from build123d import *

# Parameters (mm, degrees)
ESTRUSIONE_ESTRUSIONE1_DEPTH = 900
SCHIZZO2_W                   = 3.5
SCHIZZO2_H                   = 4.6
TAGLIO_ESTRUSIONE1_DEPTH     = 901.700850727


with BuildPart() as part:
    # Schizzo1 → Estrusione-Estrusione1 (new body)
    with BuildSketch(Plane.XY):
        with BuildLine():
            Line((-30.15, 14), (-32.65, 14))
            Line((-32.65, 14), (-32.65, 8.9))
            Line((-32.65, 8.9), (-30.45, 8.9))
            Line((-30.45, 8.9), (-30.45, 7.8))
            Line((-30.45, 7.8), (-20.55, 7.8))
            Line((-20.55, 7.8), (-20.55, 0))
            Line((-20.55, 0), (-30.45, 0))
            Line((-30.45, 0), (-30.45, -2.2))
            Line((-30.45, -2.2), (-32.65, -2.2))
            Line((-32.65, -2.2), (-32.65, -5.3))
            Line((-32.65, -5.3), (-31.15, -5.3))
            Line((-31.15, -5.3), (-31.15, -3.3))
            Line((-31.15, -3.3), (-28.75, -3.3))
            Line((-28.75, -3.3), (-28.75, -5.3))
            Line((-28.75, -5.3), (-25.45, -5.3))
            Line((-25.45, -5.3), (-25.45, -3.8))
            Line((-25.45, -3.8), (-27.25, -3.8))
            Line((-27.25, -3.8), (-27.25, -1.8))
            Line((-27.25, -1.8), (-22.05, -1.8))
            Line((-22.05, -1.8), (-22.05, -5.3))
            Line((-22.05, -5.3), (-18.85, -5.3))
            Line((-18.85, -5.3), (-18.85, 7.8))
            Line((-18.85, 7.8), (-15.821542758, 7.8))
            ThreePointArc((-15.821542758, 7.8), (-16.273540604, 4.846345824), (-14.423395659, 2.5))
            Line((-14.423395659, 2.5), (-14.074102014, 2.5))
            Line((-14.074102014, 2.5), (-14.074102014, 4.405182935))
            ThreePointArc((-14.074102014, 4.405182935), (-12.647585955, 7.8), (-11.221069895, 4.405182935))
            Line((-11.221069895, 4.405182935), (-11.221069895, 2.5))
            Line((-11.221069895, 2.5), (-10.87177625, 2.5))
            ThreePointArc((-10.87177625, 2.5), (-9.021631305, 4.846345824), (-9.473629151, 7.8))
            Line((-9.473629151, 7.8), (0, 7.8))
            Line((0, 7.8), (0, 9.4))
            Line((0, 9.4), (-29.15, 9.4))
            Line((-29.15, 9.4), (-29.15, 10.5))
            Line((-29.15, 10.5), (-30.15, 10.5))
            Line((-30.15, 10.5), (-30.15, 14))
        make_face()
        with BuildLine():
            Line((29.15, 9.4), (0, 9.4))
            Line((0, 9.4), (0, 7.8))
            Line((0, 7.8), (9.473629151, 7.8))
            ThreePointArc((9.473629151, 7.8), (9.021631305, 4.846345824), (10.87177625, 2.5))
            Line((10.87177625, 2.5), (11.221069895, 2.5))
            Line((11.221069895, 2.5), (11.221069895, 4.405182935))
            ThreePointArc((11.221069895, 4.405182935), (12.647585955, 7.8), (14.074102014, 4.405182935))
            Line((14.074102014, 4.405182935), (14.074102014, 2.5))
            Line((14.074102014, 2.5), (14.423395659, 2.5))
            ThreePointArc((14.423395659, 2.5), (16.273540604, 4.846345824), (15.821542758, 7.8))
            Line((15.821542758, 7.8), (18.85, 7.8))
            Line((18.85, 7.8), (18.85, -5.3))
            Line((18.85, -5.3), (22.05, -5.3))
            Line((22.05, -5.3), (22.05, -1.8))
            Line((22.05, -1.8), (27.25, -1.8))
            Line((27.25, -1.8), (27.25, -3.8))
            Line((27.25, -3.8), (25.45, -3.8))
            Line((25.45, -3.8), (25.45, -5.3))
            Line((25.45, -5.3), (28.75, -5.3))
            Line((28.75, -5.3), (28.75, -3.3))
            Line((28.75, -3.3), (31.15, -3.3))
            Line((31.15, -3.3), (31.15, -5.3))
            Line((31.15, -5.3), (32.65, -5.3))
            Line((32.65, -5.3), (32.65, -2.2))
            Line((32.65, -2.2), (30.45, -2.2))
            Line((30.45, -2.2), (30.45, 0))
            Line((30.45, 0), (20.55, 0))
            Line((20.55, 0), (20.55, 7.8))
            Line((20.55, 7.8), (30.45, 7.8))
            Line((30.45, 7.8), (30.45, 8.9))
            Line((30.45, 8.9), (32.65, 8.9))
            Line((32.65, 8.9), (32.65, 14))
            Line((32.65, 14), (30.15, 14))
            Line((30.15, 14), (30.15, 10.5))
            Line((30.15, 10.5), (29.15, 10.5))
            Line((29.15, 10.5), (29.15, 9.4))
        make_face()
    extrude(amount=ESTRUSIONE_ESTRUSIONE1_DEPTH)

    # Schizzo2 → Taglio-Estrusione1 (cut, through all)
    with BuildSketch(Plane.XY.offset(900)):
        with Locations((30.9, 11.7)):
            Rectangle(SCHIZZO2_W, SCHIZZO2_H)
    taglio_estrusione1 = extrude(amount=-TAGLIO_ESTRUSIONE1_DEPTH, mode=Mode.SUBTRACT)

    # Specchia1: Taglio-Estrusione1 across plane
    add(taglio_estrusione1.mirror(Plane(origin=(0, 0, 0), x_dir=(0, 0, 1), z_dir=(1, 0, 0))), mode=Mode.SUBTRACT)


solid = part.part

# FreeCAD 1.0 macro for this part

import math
import FreeCAD as App
import Part
import Sketcher

V = App.Vector

doc = App.newDocument("Part")
body = doc.addObject("PartDesign::Body", "Body")

# Sketch on XY plane
sketch1 = doc.addObject("Sketcher::SketchObject", "Sketch")
body.addObject(sketch1)
sketch1.AttachmentSupport = (doc.XY_Plane, [""])
sketch1.MapMode = "FlatFace"
sketch1.addGeometry([
    Part.LineSegment(V(-30.15, 14, 0), V(-32.65, 14, 0)),  # 0
    Part.LineSegment(V(-32.65, 14, 0), V(-32.65, 8.9, 0)),  # 1
    Part.LineSegment(V(-32.65, 8.9, 0), V(-30.45, 8.9, 0)),  # 2
    Part.LineSegment(V(-30.45, 8.9, 0), V(-30.45, 7.8, 0)),  # 3
    Part.LineSegment(V(-30.45, 7.8, 0), V(-20.55, 7.8, 0)),  # 4
    Part.LineSegment(V(-20.55, 7.8, 0), V(-20.55, 0, 0)),  # 5
    Part.LineSegment(V(-20.55, 0, 0), V(-30.45, 0, 0)),  # 6
    Part.LineSegment(V(-30.45, 0, 0), V(-30.45, -2.2, 0)),  # 7
    Part.LineSegment(V(-30.45, -2.2, 0), V(-32.65, -2.2, 0)),  # 8
    Part.LineSegment(V(-32.65, -2.2, 0), V(-32.65, -5.3, 0)),  # 9
    Part.LineSegment(V(-32.65, -5.3, 0), V(-31.15, -5.3, 0)),  # 10
    Part.LineSegment(V(-31.15, -5.3, 0), V(-31.15, -3.3, 0)),  # 11
    Part.LineSegment(V(-31.15, -3.3, 0), V(-28.75, -3.3, 0)),  # 12
    Part.LineSegment(V(-28.75, -3.3, 0), V(-28.75, -5.3, 0)),  # 13
    Part.LineSegment(V(-28.75, -5.3, 0), V(-25.45, -5.3, 0)),  # 14
    Part.LineSegment(V(-25.45, -5.3, 0), V(-25.45, -3.8, 0)),  # 15
    Part.LineSegment(V(-25.45, -3.8, 0), V(-27.25, -3.8, 0)),  # 16
    Part.LineSegment(V(-27.25, -3.8, 0), V(-27.25, -1.8, 0)),  # 17
    Part.LineSegment(V(-27.25, -1.8, 0), V(-22.05, -1.8, 0)),  # 18
    Part.LineSegment(V(-22.05, -1.8, 0), V(-22.05, -5.3, 0)),  # 19
    Part.LineSegment(V(-22.05, -5.3, 0), V(-18.85, -5.3, 0)),  # 20
    Part.LineSegment(V(-18.85, -5.3, 0), V(-18.85, 7.8, 0)),  # 21
    Part.LineSegment(V(-18.85, 7.8, 0), V(-15.82, 7.8, 0)),  # 22
    Part.ArcOfCircle(Part.Circle(V(-12.65, 5.8, 0), V(0, 0, 1), 3.75), math.radians(148), math.radians(242)),  # 23
    Part.LineSegment(V(-14.42, 2.5, 0), V(-14.07, 2.5, 0)),  # 24
    Part.LineSegment(V(-14.07, 2.5, 0), V(-14.07, 4.41, 0)),  # 25
    Part.ArcOfCircle(Part.Circle(V(-12.65, 5.8, 0), V(0, 0, 1), 2), math.radians(-44), math.radians(224)),  # 26
    Part.LineSegment(V(-11.22, 4.41, 0), V(-11.22, 2.5, 0)),  # 27
    Part.LineSegment(V(-11.22, 2.5, 0), V(-10.87, 2.5, 0)),  # 28
    Part.ArcOfCircle(Part.Circle(V(-12.65, 5.8, 0), V(0, 0, 1), 3.75), math.radians(-62), math.radians(32)),  # 29
    Part.LineSegment(V(-9.47, 7.8, 0), V(9.47, 7.8, 0)),  # 30
    Part.ArcOfCircle(Part.Circle(V(12.65, 5.8, 0), V(0, 0, 1), 3.75), math.radians(148), math.radians(242)),  # 31
    Part.LineSegment(V(10.87, 2.5, 0), V(11.22, 2.5, 0)),  # 32
    Part.LineSegment(V(11.22, 2.5, 0), V(11.22, 4.41, 0)),  # 33
    Part.ArcOfCircle(Part.Circle(V(12.65, 5.8, 0), V(0, 0, 1), 2), math.radians(-44), math.radians(224)),  # 34
    Part.LineSegment(V(14.07, 4.41, 0), V(14.07, 2.5, 0)),  # 35
    Part.LineSegment(V(14.07, 2.5, 0), V(14.42, 2.5, 0)),  # 36
    Part.ArcOfCircle(Part.Circle(V(12.65, 5.8, 0), V(0, 0, 1), 3.75), math.radians(-62), math.radians(32)),  # 37
    Part.LineSegment(V(15.82, 7.8, 0), V(18.85, 7.8, 0)),  # 38
    Part.LineSegment(V(18.85, 7.8, 0), V(18.85, -5.3, 0)),  # 39
    Part.LineSegment(V(18.85, -5.3, 0), V(22.05, -5.3, 0)),  # 40
    Part.LineSegment(V(22.05, -5.3, 0), V(22.05, -1.8, 0)),  # 41
    Part.LineSegment(V(22.05, -1.8, 0), V(27.25, -1.8, 0)),  # 42
    Part.LineSegment(V(27.25, -1.8, 0), V(27.25, -3.8, 0)),  # 43
    Part.LineSegment(V(27.25, -3.8, 0), V(25.45, -3.8, 0)),  # 44
    Part.LineSegment(V(25.45, -3.8, 0), V(25.45, -5.3, 0)),  # 45
    Part.LineSegment(V(25.45, -5.3, 0), V(28.75, -5.3, 0)),  # 46
    Part.LineSegment(V(28.75, -5.3, 0), V(28.75, -3.3, 0)),  # 47
    Part.LineSegment(V(28.75, -3.3, 0), V(31.15, -3.3, 0)),  # 48
    Part.LineSegment(V(31.15, -3.3, 0), V(31.15, -5.3, 0)),  # 49
    Part.LineSegment(V(31.15, -5.3, 0), V(32.65, -5.3, 0)),  # 50
    Part.LineSegment(V(32.65, -5.3, 0), V(32.65, -2.2, 0)),  # 51
    Part.LineSegment(V(32.65, -2.2, 0), V(30.45, -2.2, 0)),  # 52
    Part.LineSegment(V(30.45, -2.2, 0), V(30.45, 0, 0)),  # 53
    Part.LineSegment(V(30.45, 0, 0), V(20.55, 0, 0)),  # 54
    Part.LineSegment(V(20.55, 0, 0), V(20.55, 7.8, 0)),  # 55
    Part.LineSegment(V(20.55, 7.8, 0), V(30.45, 7.8, 0)),  # 56
    Part.LineSegment(V(30.45, 7.8, 0), V(30.45, 8.9, 0)),  # 57
    Part.LineSegment(V(30.45, 8.9, 0), V(32.65, 8.9, 0)),  # 58
    Part.LineSegment(V(32.65, 8.9, 0), V(32.65, 14, 0)),  # 59
    Part.LineSegment(V(32.65, 14, 0), V(30.15, 14, 0)),  # 60
    Part.LineSegment(V(30.15, 14, 0), V(30.15, 10.5, 0)),  # 61
    Part.LineSegment(V(30.15, 10.5, 0), V(29.15, 10.5, 0)),  # 62
    Part.LineSegment(V(29.15, 10.5, 0), V(29.15, 9.4, 0)),  # 63
    Part.LineSegment(V(29.15, 9.4, 0), V(-29.15, 9.4, 0)),  # 64
    Part.LineSegment(V(-29.15, 9.4, 0), V(-29.15, 10.5, 0)),  # 65
    Part.LineSegment(V(-29.15, 10.5, 0), V(-30.15, 10.5, 0)),  # 66
    Part.LineSegment(V(-30.15, 10.5, 0), V(-30.15, 14, 0)),  # 67
], False)
sketch1.addConstraint([
    Sketcher.Constraint("Coincident", 0, 2, 1, 1),
    Sketcher.Constraint("Coincident", 1, 2, 2, 1),
    Sketcher.Constraint("Coincident", 2, 2, 3, 1),
    Sketcher.Constraint("Coincident", 3, 2, 4, 1),
    Sketcher.Constraint("Coincident", 4, 2, 5, 1),
    Sketcher.Constraint("Coincident", 5, 2, 6, 1),
    Sketcher.Constraint("Coincident", 6, 2, 7, 1),
    Sketcher.Constraint("Coincident", 7, 2, 8, 1),
    Sketcher.Constraint("Coincident", 8, 2, 9, 1),
    Sketcher.Constraint("Coincident", 9, 2, 10, 1),
    Sketcher.Constraint("Coincident", 10, 2, 11, 1),
    Sketcher.Constraint("Coincident", 11, 2, 12, 1),
    Sketcher.Constraint("Coincident", 12, 2, 13, 1),
    Sketcher.Constraint("Coincident", 13, 2, 14, 1),
    Sketcher.Constraint("Coincident", 14, 2, 15, 1),
    Sketcher.Constraint("Coincident", 15, 2, 16, 1),
    Sketcher.Constraint("Coincident", 16, 2, 17, 1),
    Sketcher.Constraint("Coincident", 17, 2, 18, 1),
    Sketcher.Constraint("Coincident", 18, 2, 19, 1),
    Sketcher.Constraint("Coincident", 19, 2, 20, 1),
    Sketcher.Constraint("Coincident", 20, 2, 21, 1),
    Sketcher.Constraint("Coincident", 21, 2, 22, 1),
    Sketcher.Constraint("Coincident", 22, 2, 23, 1),
    Sketcher.Constraint("Coincident", 23, 2, 24, 1),
    Sketcher.Constraint("Coincident", 24, 2, 25, 1),
    Sketcher.Constraint("Coincident", 25, 2, 26, 2),
    Sketcher.Constraint("Coincident", 26, 1, 27, 1),
    Sketcher.Constraint("Coincident", 27, 2, 28, 1),
    Sketcher.Constraint("Coincident", 28, 2, 29, 1),
    Sketcher.Constraint("Coincident", 29, 2, 30, 1),
    Sketcher.Constraint("Coincident", 30, 2, 31, 1),
    Sketcher.Constraint("Coincident", 31, 2, 32, 1),
    Sketcher.Constraint("Coincident", 32, 2, 33, 1),
    Sketcher.Constraint("Coincident", 33, 2, 34, 2),
    Sketcher.Constraint("Coincident", 34, 1, 35, 1),
    Sketcher.Constraint("Coincident", 35, 2, 36, 1),
    Sketcher.Constraint("Coincident", 36, 2, 37, 1),
    Sketcher.Constraint("Coincident", 37, 2, 38, 1),
    Sketcher.Constraint("Coincident", 38, 2, 39, 1),
    Sketcher.Constraint("Coincident", 39, 2, 40, 1),
    Sketcher.Constraint("Coincident", 40, 2, 41, 1),
    Sketcher.Constraint("Coincident", 41, 2, 42, 1),
    Sketcher.Constraint("Coincident", 42, 2, 43, 1),
    Sketcher.Constraint("Coincident", 43, 2, 44, 1),
    Sketcher.Constraint("Coincident", 44, 2, 45, 1),
    Sketcher.Constraint("Coincident", 45, 2, 46, 1),
    Sketcher.Constraint("Coincident", 46, 2, 47, 1),
    Sketcher.Constraint("Coincident", 47, 2, 48, 1),
    Sketcher.Constraint("Coincident", 48, 2, 49, 1),
    Sketcher.Constraint("Coincident", 49, 2, 50, 1),
    Sketcher.Constraint("Coincident", 50, 2, 51, 1),
    Sketcher.Constraint("Coincident", 51, 2, 52, 1),
    Sketcher.Constraint("Coincident", 52, 2, 53, 1),
    Sketcher.Constraint("Coincident", 53, 2, 54, 1),
    Sketcher.Constraint("Coincident", 54, 2, 55, 1),
    Sketcher.Constraint("Coincident", 55, 2, 56, 1),
    Sketcher.Constraint("Coincident", 56, 2, 57, 1),
    Sketcher.Constraint("Coincident", 57, 2, 58, 1),
    Sketcher.Constraint("Coincident", 58, 2, 59, 1),
    Sketcher.Constraint("Coincident", 59, 2, 60, 1),
    Sketcher.Constraint("Coincident", 60, 2, 61, 1),
    Sketcher.Constraint("Coincident", 61, 2, 62, 1),
    Sketcher.Constraint("Coincident", 62, 2, 63, 1),
    Sketcher.Constraint("Coincident", 63, 2, 64, 1),
    Sketcher.Constraint("Coincident", 64, 2, 65, 1),
    Sketcher.Constraint("Coincident", 65, 2, 66, 1),
    Sketcher.Constraint("Coincident", 66, 2, 67, 1),
    Sketcher.Constraint("Coincident", 67, 2, 0, 1),
    Sketcher.Constraint("Horizontal", 0),
    Sketcher.Constraint("Vertical", 1),
    Sketcher.Constraint("Horizontal", 2),
    Sketcher.Constraint("Vertical", 3),
    Sketcher.Constraint("Horizontal", 4),
    Sketcher.Constraint("Vertical", 5),
    Sketcher.Constraint("Horizontal", 6),
    Sketcher.Constraint("Vertical", 7),
    Sketcher.Constraint("Horizontal", 8),
    Sketcher.Constraint("Vertical", 9),
    Sketcher.Constraint("Horizontal", 10),
    Sketcher.Constraint("Vertical", 11),
    Sketcher.Constraint("Horizontal", 12),
    Sketcher.Constraint("Vertical", 13),
    Sketcher.Constraint("Horizontal", 14),
    Sketcher.Constraint("Vertical", 15),
    Sketcher.Constraint("Horizontal", 16),
    Sketcher.Constraint("Vertical", 17),
    Sketcher.Constraint("Horizontal", 18),
    Sketcher.Constraint("Vertical", 19),
    Sketcher.Constraint("Horizontal", 20),
    Sketcher.Constraint("Vertical", 21),
    Sketcher.Constraint("Horizontal", 22),
    Sketcher.Constraint("Horizontal", 24),
    Sketcher.Constraint("Vertical", 25),
    Sketcher.Constraint("Vertical", 27),
    Sketcher.Constraint("Horizontal", 28),
    Sketcher.Constraint("Horizontal", 30),
    Sketcher.Constraint("Horizontal", 32),
    Sketcher.Constraint("Vertical", 33),
    Sketcher.Constraint("Vertical", 35),
    Sketcher.Constraint("Horizontal", 36),
    Sketcher.Constraint("Horizontal", 38),
    Sketcher.Constraint("Vertical", 39),
    Sketcher.Constraint("Horizontal", 40),
    Sketcher.Constraint("Vertical", 41),
    Sketcher.Constraint("Horizontal", 42),
    Sketcher.Constraint("Vertical", 43),
    Sketcher.Constraint("Horizontal", 44),
    Sketcher.Constraint("Vertical", 45),
    Sketcher.Constraint("Horizontal", 46),
    Sketcher.Constraint("Vertical", 47),
    Sketcher.Constraint("Horizontal", 48),
    Sketcher.Constraint("Vertical", 49),
    Sketcher.Constraint("Horizontal", 50),
    Sketcher.Constraint("Vertical", 51),
    Sketcher.Constraint("Horizontal", 52),
    Sketcher.Constraint("Vertical", 53),
    Sketcher.Constraint("Horizontal", 54),
    Sketcher.Constraint("Vertical", 55),
    Sketcher.Constraint("Horizontal", 56),
    Sketcher.Constraint("Vertical", 57),
    Sketcher.Constraint("Horizontal", 58),
    Sketcher.Constraint("Vertical", 59),
    Sketcher.Constraint("Horizontal", 60),
    Sketcher.Constraint("Vertical", 61),
    Sketcher.Constraint("Horizontal", 62),
    Sketcher.Constraint("Vertical", 63),
    Sketcher.Constraint("Horizontal", 64),
    Sketcher.Constraint("Vertical", 65),
    Sketcher.Constraint("Horizontal", 66),
    Sketcher.Constraint("Vertical", 67),
    Sketcher.Constraint("Coincident", 26, 3, 23, 3),
    Sketcher.Constraint("Coincident", 29, 3, 23, 3),
    Sketcher.Constraint("Coincident", 34, 3, 31, 3),
    Sketcher.Constraint("Coincident", 37, 3, 31, 3),
    Sketcher.Constraint("Equal", 23, 29),
    Sketcher.Constraint("Equal", 29, 31),
    Sketcher.Constraint("Equal", 26, 34),
    Sketcher.Constraint("Equal", 31, 37),
    Sketcher.Constraint("Symmetric", 6, 2, 53, 2, -1, 1),
    Sketcher.Constraint("Symmetric", 23, 3, 31, 3, -2),
    Sketcher.Constraint("Symmetric", 27, 2, 32, 2, -2),
    Sketcher.Constraint("Symmetric", 24, 2, 35, 2, -2),
    Sketcher.Constraint("Symmetric", 21, 2, 38, 2, -2),
    Sketcher.Constraint("Symmetric", 19, 2, 40, 2, -2),
    Sketcher.Constraint("Symmetric", 17, 2, 42, 2, -2),
    Sketcher.Constraint("Symmetric", 15, 2, 44, 2, -2),
    Sketcher.Constraint("Symmetric", 13, 2, 46, 2, -2),
    Sketcher.Constraint("Symmetric", 11, 2, 48, 2, -2),
    Sketcher.Constraint("Symmetric", 9, 2, 50, 2, -2),
    Sketcher.Constraint("Symmetric", 5, 2, 54, 2, -2),
    Sketcher.Constraint("Symmetric", 3, 2, 56, 2, -2),
    Sketcher.Constraint("Symmetric", 1, 2, 58, 2, -2),
    Sketcher.Constraint("Symmetric", 62, 2, 65, 2, -2),
    Sketcher.Constraint("Symmetric", 60, 2, 67, 2, -2),
    Sketcher.Constraint("Horizontal", 10, 2, 13, 2),
    Sketcher.Constraint("Horizontal", 14, 2, 19, 2),
    Sketcher.Constraint("Horizontal", 4, 2, 21, 2),
    Sketcher.Constraint("Horizontal", 25, 2, 26, 1),
    Sketcher.Constraint("Horizontal", 24, 2, 27, 2),
    Sketcher.Constraint("Horizontal", 22, 2, 29, 2),
    Sketcher.Constraint("Horizontal", 8, 2, 51, 2),
    Sketcher.Constraint("Vertical", 3, 2, 6, 2),
    Sketcher.Constraint("Vertical", 1, 2, 8, 2),
    Sketcher.Constraint("Equal", 58, 7),
    Sketcher.Constraint("Equal", 50, 15),
    Sketcher.Constraint("Equal", 13, 17),
    Sketcher.Constraint("Equal", 41, 61),
    Sketcher.Constraint("Equal", 57, 63),
    Sketcher.Constraint("DistanceX", 62, 2, 62, 1, 1.0),
    Sketcher.Constraint("DistanceY", 11, 1, 11, 2, 2.0),
    Sketcher.Constraint("Radius", 23, 3.75),
    Sketcher.Constraint("DistanceX", 0, 2, 0, 1, 2.5),
    Sketcher.Constraint("DistanceX", 2, 1, 2, 2, 2.2),
    Sketcher.Constraint("DistanceX", 4, 1, 4, 2, 9.9),
    Sketcher.Constraint("DistanceX", 10, 1, 10, 2, 1.5),
    Sketcher.Constraint("DistanceX", 12, 1, 12, 2, 2.4),
    Sketcher.Constraint("DistanceX", 14, 1, 14, 2, 3.3),
    Sketcher.Constraint("DistanceX", 16, 2, 16, 1, 1.8),
    Sketcher.Constraint("DistanceX", 18, 1, 18, 2, 5.2),
    Sketcher.Constraint("DistanceX", 20, 1, 20, 2, 3.2),
    Sketcher.Constraint("DistanceX", 64, 2, 64, 1, 58.3),
    Sketcher.Constraint("DistanceY", 1, 2, 1, 1, 5.1),
    Sketcher.Constraint("DistanceY", 3, 2, 3, 1, 1.1),
    Sketcher.Constraint("DistanceY", 5, 2, 5, 1, 7.8),
    Sketcher.Constraint("DistanceY", 9, 2, 9, 1, 3.1),
    Sketcher.Constraint("DistanceY", -1, 1, 23, 2, 2.5),
    Sketcher.Constraint("Radius", 26, 1.997122),
    Sketcher.Constraint("DistanceX", 30, 1, 30, 2, 18.947258),
    Sketcher.Constraint("DistanceX", 22, 1, 22, 2, 3.028457),
    Sketcher.Constraint("DistanceX", 24, 1, 24, 2, 0.349294),
])
pad1 = doc.addObject("PartDesign::Pad", "Pad")
body.addObject(pad1)
pad1.Profile = sketch1
pad1.Length = 900

# Sketch on XY plane
sketch2 = doc.addObject("Sketcher::SketchObject", "Sketch001")
body.addObject(sketch2)
sketch2.AttachmentSupport = (doc.XY_Plane, [""])
sketch2.MapMode = "FlatFace"
sketch2.AttachmentOffset = App.Placement(V(0, 0, 900), App.Rotation())
sketch2.addGeometry([
    Part.LineSegment(V(29.1, 14, 0), V(29.1, 9.4, 0)),
    Part.LineSegment(V(29.1, 9.4, 0), V(32.6, 9.4, 0)),
    Part.LineSegment(V(32.6, 9.4, 0), V(32.6, 14, 0)),
    Part.LineSegment(V(32.6, 14, 0), V(29.1, 14, 0)),
], False)
sketch2.addConstraint([
    Sketcher.Constraint("Coincident", 0, 2, 1, 1),
    Sketcher.Constraint("Coincident", 1, 2, 2, 1),
    Sketcher.Constraint("Coincident", 2, 2, 3, 1),
    Sketcher.Constraint("Coincident", 3, 2, 0, 1),
    Sketcher.Constraint("Vertical", 0),
    Sketcher.Constraint("Horizontal", 1),
    Sketcher.Constraint("Vertical", 2),
    Sketcher.Constraint("Horizontal", 3),
    Sketcher.Constraint("DistanceX", 1, 1, 1, 2, 3.5),
    Sketcher.Constraint("DistanceY", 0, 2, 0, 1, 4.6),
    Sketcher.Constraint("DistanceY", -1, 1, 2, 2, 14.0),
    Sketcher.Constraint("DistanceX", -1, 1, 0, 2, 29.15),
])
pocket1 = doc.addObject("PartDesign::Pocket", "Pocket")
body.addObject(pocket1)
pocket1.Profile = sketch2
pocket1.Type = "ThroughAll"
doc.recompute()

mirrored = doc.addObject("PartDesign::Mirrored", "Mirrored")
body.addObject(mirrored)
mirrored.Originals = [pocket1]
mirrored.MirrorPlane = (doc.YZ_Plane, [""])
body.Tip = mirrored

doc.recompute()
